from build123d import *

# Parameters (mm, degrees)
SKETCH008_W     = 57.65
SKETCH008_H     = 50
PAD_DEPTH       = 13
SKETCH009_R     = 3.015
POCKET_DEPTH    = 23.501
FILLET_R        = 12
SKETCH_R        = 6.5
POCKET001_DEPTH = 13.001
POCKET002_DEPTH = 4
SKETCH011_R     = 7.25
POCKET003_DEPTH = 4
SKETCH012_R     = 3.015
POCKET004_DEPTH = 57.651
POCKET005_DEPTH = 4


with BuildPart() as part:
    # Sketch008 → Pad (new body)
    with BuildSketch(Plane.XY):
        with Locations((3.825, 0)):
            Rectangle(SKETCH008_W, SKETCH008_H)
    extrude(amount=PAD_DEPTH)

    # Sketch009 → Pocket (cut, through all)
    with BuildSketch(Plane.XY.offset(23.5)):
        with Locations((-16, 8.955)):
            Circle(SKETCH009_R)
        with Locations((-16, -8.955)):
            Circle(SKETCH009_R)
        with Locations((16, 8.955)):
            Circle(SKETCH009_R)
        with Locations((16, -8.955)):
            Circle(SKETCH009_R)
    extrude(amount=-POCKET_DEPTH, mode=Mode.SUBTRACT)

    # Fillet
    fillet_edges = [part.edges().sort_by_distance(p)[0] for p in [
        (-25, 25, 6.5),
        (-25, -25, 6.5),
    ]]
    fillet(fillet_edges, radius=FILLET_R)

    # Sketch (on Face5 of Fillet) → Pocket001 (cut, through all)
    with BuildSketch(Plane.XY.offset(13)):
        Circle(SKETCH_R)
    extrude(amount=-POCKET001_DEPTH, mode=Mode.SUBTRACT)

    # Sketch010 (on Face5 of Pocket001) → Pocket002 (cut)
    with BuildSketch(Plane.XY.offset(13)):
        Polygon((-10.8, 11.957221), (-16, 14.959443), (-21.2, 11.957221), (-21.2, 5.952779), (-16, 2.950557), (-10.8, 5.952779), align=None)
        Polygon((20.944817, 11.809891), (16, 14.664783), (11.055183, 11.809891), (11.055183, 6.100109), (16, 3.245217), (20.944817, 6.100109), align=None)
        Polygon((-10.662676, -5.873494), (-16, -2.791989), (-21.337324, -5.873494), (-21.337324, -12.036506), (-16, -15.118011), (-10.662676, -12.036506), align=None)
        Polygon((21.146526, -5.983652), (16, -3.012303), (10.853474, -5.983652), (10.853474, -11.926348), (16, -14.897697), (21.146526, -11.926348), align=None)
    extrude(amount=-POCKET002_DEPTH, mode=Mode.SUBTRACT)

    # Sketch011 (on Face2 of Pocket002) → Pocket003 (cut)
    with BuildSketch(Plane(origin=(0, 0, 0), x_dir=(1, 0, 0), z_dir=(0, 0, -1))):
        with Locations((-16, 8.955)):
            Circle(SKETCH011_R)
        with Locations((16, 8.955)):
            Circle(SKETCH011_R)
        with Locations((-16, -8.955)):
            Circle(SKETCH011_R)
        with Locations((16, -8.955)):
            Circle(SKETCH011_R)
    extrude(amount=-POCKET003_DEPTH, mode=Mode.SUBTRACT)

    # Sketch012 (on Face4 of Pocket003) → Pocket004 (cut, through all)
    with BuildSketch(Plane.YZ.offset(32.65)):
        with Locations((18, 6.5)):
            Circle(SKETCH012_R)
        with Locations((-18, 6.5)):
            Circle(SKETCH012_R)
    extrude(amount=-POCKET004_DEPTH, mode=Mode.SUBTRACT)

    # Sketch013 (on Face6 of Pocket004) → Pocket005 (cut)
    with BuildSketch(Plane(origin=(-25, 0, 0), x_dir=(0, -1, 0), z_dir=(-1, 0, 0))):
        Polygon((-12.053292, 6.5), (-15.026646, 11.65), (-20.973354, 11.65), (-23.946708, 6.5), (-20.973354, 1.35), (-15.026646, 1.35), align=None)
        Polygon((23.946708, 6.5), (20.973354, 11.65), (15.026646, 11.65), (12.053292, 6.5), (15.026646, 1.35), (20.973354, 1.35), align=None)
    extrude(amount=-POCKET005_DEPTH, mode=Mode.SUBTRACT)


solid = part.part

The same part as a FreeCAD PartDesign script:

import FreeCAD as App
import Part
import Sketcher
from FreeCAD import Vector
Q = App.Units.Quantity


def edges_at(feature, points):
    """Names of the edges that pass closest to the given points."""
    edges = feature.Shape.Edges
    near = lambda p: min(range(len(edges)), key=lambda i: edges[i].distToShape(Part.Vertex(*p))[0])
    return sorted({f"Edge{near(p) + 1}" for p in points})


def add_polygon(sketch, points):
    """Adds a closed chain of lines whose ends are joined by coincident constraints."""
    first, n = sketch.GeometryCount, len(points)
    for a, b in zip(points, points[1:] + points[:1]):
        sketch.addGeometry(Part.LineSegment(App.Vector(*a, 0), App.Vector(*b, 0)), False)
    for i in range(n):
        sketch.addConstraint(Sketcher.Constraint("Coincident", first + i, 2, first + (i + 1) % n, 1))

doc = App.newDocument("Part")
body = doc.addObject("PartDesign::Body", "Body")

sketch1 = body.newObject("Sketcher::SketchObject", "Sketch")
sketch1.AttachmentSupport = (doc.getObject("XY_Plane"), [""])
sketch1.MapMode = "FlatFace"
add_polygon(sketch1, [(-25, 25), (-25, -25), (33, -25), (33, 25)])
sketch1.addConstraint([
    Sketcher.Constraint("Vertical", 0),
    Sketcher.Constraint("Horizontal", 1),
    Sketcher.Constraint("Vertical", 2),
    Sketcher.Constraint("Horizontal", 3),
    Sketcher.Constraint("DistanceY", 0, 2, 0, 1, 50.0),
    Sketcher.Constraint("DistanceX", 0, 2, -1, 1, 25.0),
    Sketcher.Constraint("DistanceY", 0, 2, -1, 1, 25.0),
    Sketcher.Constraint("DistanceX", 1, 1, 1, 2, 57.65),
])
pad1 = body.newObject("PartDesign::Pad", "Pad")
pad1.Profile = sketch1
pad1.Length = 13

sketch2 = body.newObject("Sketcher::SketchObject", "Sketch001")
sketch2.AttachmentSupport = (doc.getObject("XY_Plane"), [""])
sketch2.MapMode = "FlatFace"
sketch2.AttachmentOffset = App.Placement(Vector(0, 0, 23.5), App.Rotation())
sketch2.addGeometry([
    Part.Circle(Vector(-16, 9, 0), Vector(0, 0, 1), 3),
    Part.Circle(Vector(-16, -9, 0), Vector(0, 0, 1), 3),
    Part.Circle(Vector(16, 9, 0), Vector(0, 0, 1), 3),
    Part.Circle(Vector(16, -9, 0), Vector(0, 0, 1), 3),
], False)
sketch2.addConstraint([
    Sketcher.Constraint("Equal", 0, 1),
    Sketcher.Constraint("Equal", 1, 2),
    Sketcher.Constraint("Equal", 2, 3),
    Sketcher.Constraint("Symmetric", 1, 3, 2, 3, -1, 1),
    Sketcher.Constraint("Symmetric", 0, 3, 3, 3, -1, 1),
    Sketcher.Constraint("Symmetric", 0, 3, 2, 3, -2),
    Sketcher.Constraint("Diameter", 0, 6.03),
    Sketcher.Constraint("DistanceX", 0, 3, -1, 1, 16.0),
    Sketcher.Constraint("DistanceY", 1, 3, 0, 3, 17.91),
])
pocket1 = body.newObject("PartDesign::Pocket", "Pocket")
pocket1.Profile = sketch2
pocket1.Type = "ThroughAll"
doc.recompute()

fillet = body.newObject("PartDesign::Fillet", "Fillet")
fillet.Base = (pocket1, edges_at(pocket1, [(-25, 25, 6.5), (-25, -25, 6.5)]))
fillet.Radius = 12

sketch3 = body.newObject("Sketcher::SketchObject", "Sketch002")
sketch3.AttachmentSupport = (doc.getObject("XY_Plane"), [""])
sketch3.MapMode = "FlatFace"
sketch3.AttachmentOffset = App.Placement(Vector(0, 0, 13), App.Rotation())
sketch3.addGeometry(Part.Circle(Vector(0, 0, 0), Vector(0, 0, 1), 6), False)
sketch3.addConstraint([
    Sketcher.Constraint("Coincident", 0, 3, -1, 1),
    Sketcher.Constraint("Diameter", 0, 13.0),
])
pocket2 = body.newObject("PartDesign::Pocket", "Pocket001")
pocket2.Profile = sketch3
pocket2.Type = "ThroughAll"

sketch4 = body.newObject("Sketcher::SketchObject", "Sketch003")
sketch4.AttachmentSupport = (doc.getObject("XY_Plane"), [""])
sketch4.MapMode = "FlatFace"
sketch4.AttachmentOffset = App.Placement(Vector(0, 0, 13), App.Rotation())
add_polygon(sketch4, [(-11, 12), (-16, 15), (-21, 12), (-21, 6), (-16, 3), (-11, 6)])
add_polygon(sketch4, [(21, 12), (16, 15), (11, 12), (11, 6), (16, 3), (21, 6)])
add_polygon(sketch4, [(-11, -6), (-16, -3), (-21, -6), (-21, -12), (-16, -15), (-11, -12)])
add_polygon(sketch4, [(21, -6), (16, -3), (11, -6), (11, -12), (16, -15), (21, -12)])
sketch4.addConstraint([
    Sketcher.Constraint("Vertical", 2),
    Sketcher.Constraint("Vertical", 5),
    Sketcher.Constraint("Vertical", 8),
    Sketcher.Constraint("Vertical", 11),
    Sketcher.Constraint("Vertical", 14),
    Sketcher.Constraint("Vertical", 17),
    Sketcher.Constraint("Vertical", 20),
    Sketcher.Constraint("Vertical", 23),
    Sketcher.Constraint("Parallel", 0, 3),
    Sketcher.Constraint("Parallel", 1, 4),
    Sketcher.Constraint("Parallel", 3, 6),
    Sketcher.Constraint("Parallel", 4, 7),
    Sketcher.Constraint("Parallel", 6, 9),
    Sketcher.Constraint("Parallel", 7, 10),
    Sketcher.Constraint("Parallel", 9, 12),
    Sketcher.Constraint("Parallel", 10, 13),
    Sketcher.Constraint("Parallel", 12, 15),
    Sketcher.Constraint("Parallel", 13, 16),
    Sketcher.Constraint("Parallel", 15, 18),
    Sketcher.Constraint("Parallel", 16, 19),
    Sketcher.Constraint("Parallel", 18, 21),
    Sketcher.Constraint("Parallel", 19, 22),
    Sketcher.Constraint("Horizontal", 2, 2, 4, 2),
    Sketcher.Constraint("Horizontal", 1, 2, 5, 2),
    Sketcher.Constraint("Horizontal", 8, 2, 10, 2),
    Sketcher.Constraint("Horizontal", 7, 2, 11, 2),
    Sketcher.Constraint("Horizontal", 14, 2, 16, 2),
    Sketcher.Constraint("Horizontal", 13, 2, 17, 2),
    Sketcher.Constraint("Horizontal", 20, 2, 22, 2),
    Sketcher.Constraint("Horizontal", 19, 2, 23, 2),
    Sketcher.Constraint("Vertical", 0, 2, 3, 2),
    Sketcher.Constraint("Vertical", 3, 2, 12, 2),
    Sketcher.Constraint("Vertical", 9, 2, 18, 2),
    Sketcher.Constraint("Angle", 0, Q("149.999995 deg")),
    Sketcher.Constraint("DistanceX", 0, 2, -1, 1, 16.0),
    Sketcher.Constraint("DistanceX", -1, 1, 6, 2, 16.0),
    Sketcher.Constraint("DistanceX", 1, 2, -1, 1, 21.2),
    Sketcher.Constraint("DistanceY", 14, 2, 14, 1, 6.163012),
    Sketcher.Constraint("Distance", 12, 6.163011),
    Sketcher.Constraint("DistanceY", 2, 2, 2, 1, 6.004442),
    Sketcher.Constraint("DistanceY", 8, 2, 8, 1, 5.709782),
    Sketcher.Constraint("DistanceY", 20, 2, 20, 1, 5.942696),
    Sketcher.Constraint("DistanceY", -1, 1, 1, 2, 11.957221),
    Sketcher.Constraint("DistanceY", -1, 1, 7, 2, 11.809891),
    Sketcher.Constraint("DistanceY", 12, 2, -1, 1, 2.791989),
    Sketcher.Constraint("DistanceY", 20, 2, -1, 1, 11.926348),
    Sketcher.Constraint("DistanceY", 5, 2, 6, 2, 2.707562),
    Sketcher.Constraint("DistanceY", 18, 2, 9, 2, 6.25752),
])
pocket3 = body.newObject("PartDesign::Pocket", "Pocket002")
pocket3.Profile = sketch4
pocket3.Length = 4

sketch5 = body.newObject("Sketcher::SketchObject", "Sketch004")
sketch5.AttachmentSupport = (doc.getObject("XY_Plane"), [""])
sketch5.MapMode = "FlatFace"
sketch5.addGeometry([
    Part.Circle(Vector(-16, -9, 0), Vector(0, 0, 1), 7),
    Part.Circle(Vector(16, -9, 0), Vector(0, 0, 1), 7),
    Part.Circle(Vector(-16, 9, 0), Vector(0, 0, 1), 7),
    Part.Circle(Vector(16, 9, 0), Vector(0, 0, 1), 7),
], False)
sketch5.addConstraint([
    Sketcher.Constraint("Equal", 0, 1),
    Sketcher.Constraint("Equal", 1, 2),
    Sketcher.Constraint("Equal", 2, 3),
    Sketcher.Constraint("Symmetric", 1, 3, 2, 3, -1, 1),
    Sketcher.Constraint("Symmetric", 0, 3, 3, 3, -1, 1),
    Sketcher.Constraint("Symmetric", 0, 3, 1, 3, -2),
    Sketcher.Constraint("Diameter", 0, 14.5),
    Sketcher.Constraint("DistanceX", 0, 3, -1, 1, 16.0),
    Sketcher.Constraint("DistanceY", 0, 3, 2, 3, 17.91),
])
pocket4 = body.newObject("PartDesign::Pocket", "Pocket003")
pocket4.Profile = sketch5
pocket4.Length = 4
pocket4.Reversed = True

sketch6 = body.newObject("Sketcher::SketchObject", "Sketch005")
sketch6.AttachmentSupport = (doc.getObject("YZ_Plane"), [""])
sketch6.MapMode = "FlatFace"
sketch6.AttachmentOffset = App.Placement(Vector(0, 0, 32.65), App.Rotation())
sketch6.addGeometry([
    Part.Circle(Vector(18, 6.5, 0), Vector(0, 0, 1), 3),
    Part.Circle(Vector(-18, 6.5, 0), Vector(0, 0, 1), 3),
], False)
sketch6.addConstraint([
    Sketcher.Constraint("Equal", 0, 1),
    Sketcher.Constraint("Symmetric", 0, 3, 1, 3, -2),
    Sketcher.Constraint("Diameter", 0, 6.03),
    Sketcher.Constraint("DistanceX", -1, 1, 0, 3, 18.0),
    Sketcher.Constraint("DistanceY", -1, 1, 0, 3, 6.5),
])
pocket5 = body.newObject("PartDesign::Pocket", "Pocket004")
pocket5.Profile = sketch6
pocket5.Type = "ThroughAll"

sketch7 = body.newObject("Sketcher::SketchObject", "Sketch006")
sketch7.AttachmentSupport = (doc.getObject("YZ_Plane"), [""])
sketch7.MapMode = "FlatFace"
sketch7.AttachmentOffset = App.Placement(Vector(0, 0, -25), App.Rotation())
add_polygon(sketch7, [(12, 6), (15, 12), (21, 12), (24, 6), (21, 1), (15, 1)])
add_polygon(sketch7, [(-24, 6), (-21, 12), (-15, 12), (-12, 6), (-15, 1), (-21, 1)])
sketch7.addConstraint([
    Sketcher.Constraint("Horizontal", 1),
    Sketcher.Constraint("Horizontal", 4),
    Sketcher.Constraint("Horizontal", 7),
    Sketcher.Constraint("Horizontal", 10),
    Sketcher.Constraint("Symmetric", 1, 2, 6, 2, -2),
    Sketcher.Constraint("Symmetric", 5, 2, 8, 2, -2),
    Sketcher.Constraint("Symmetric", 4, 2, 9, 2, -2),
    Sketcher.Constraint("Symmetric", 2, 2, 11, 2, -2),
    Sketcher.Constraint("Parallel", 0, 3),
    Sketcher.Constraint("Parallel", 2, 5),
    Sketcher.Constraint("Parallel", 3, 6),
    Sketcher.Constraint("Parallel", 5, 8),
    Sketcher.Constraint("Parallel", 8, 11),
    Sketcher.Constraint("Horizontal", 2, 2, 5, 2),
    Sketcher.Constraint("Vertical", 1, 2, 3, 2),
    Sketcher.Constraint("Angle", 0, Q("59.999999 deg")),
    Sketcher.Constraint("DistanceX", 6, 2, 0, 2, 36.0),
    Sketcher.Constraint("DistanceY", -1, 1, 2, 2, 6.5),
    Sketcher.Constraint("DistanceY", 3, 2, 1, 2, 10.3),
    Sketcher.Constraint("DistanceX", 1, 1, 1, 2, 5.946708),
])
pocket6 = body.newObject("PartDesign::Pocket", "Pocket005")
pocket6.Profile = sketch7
pocket6.Length = 4
pocket6.Reversed = True

doc.recompute()
